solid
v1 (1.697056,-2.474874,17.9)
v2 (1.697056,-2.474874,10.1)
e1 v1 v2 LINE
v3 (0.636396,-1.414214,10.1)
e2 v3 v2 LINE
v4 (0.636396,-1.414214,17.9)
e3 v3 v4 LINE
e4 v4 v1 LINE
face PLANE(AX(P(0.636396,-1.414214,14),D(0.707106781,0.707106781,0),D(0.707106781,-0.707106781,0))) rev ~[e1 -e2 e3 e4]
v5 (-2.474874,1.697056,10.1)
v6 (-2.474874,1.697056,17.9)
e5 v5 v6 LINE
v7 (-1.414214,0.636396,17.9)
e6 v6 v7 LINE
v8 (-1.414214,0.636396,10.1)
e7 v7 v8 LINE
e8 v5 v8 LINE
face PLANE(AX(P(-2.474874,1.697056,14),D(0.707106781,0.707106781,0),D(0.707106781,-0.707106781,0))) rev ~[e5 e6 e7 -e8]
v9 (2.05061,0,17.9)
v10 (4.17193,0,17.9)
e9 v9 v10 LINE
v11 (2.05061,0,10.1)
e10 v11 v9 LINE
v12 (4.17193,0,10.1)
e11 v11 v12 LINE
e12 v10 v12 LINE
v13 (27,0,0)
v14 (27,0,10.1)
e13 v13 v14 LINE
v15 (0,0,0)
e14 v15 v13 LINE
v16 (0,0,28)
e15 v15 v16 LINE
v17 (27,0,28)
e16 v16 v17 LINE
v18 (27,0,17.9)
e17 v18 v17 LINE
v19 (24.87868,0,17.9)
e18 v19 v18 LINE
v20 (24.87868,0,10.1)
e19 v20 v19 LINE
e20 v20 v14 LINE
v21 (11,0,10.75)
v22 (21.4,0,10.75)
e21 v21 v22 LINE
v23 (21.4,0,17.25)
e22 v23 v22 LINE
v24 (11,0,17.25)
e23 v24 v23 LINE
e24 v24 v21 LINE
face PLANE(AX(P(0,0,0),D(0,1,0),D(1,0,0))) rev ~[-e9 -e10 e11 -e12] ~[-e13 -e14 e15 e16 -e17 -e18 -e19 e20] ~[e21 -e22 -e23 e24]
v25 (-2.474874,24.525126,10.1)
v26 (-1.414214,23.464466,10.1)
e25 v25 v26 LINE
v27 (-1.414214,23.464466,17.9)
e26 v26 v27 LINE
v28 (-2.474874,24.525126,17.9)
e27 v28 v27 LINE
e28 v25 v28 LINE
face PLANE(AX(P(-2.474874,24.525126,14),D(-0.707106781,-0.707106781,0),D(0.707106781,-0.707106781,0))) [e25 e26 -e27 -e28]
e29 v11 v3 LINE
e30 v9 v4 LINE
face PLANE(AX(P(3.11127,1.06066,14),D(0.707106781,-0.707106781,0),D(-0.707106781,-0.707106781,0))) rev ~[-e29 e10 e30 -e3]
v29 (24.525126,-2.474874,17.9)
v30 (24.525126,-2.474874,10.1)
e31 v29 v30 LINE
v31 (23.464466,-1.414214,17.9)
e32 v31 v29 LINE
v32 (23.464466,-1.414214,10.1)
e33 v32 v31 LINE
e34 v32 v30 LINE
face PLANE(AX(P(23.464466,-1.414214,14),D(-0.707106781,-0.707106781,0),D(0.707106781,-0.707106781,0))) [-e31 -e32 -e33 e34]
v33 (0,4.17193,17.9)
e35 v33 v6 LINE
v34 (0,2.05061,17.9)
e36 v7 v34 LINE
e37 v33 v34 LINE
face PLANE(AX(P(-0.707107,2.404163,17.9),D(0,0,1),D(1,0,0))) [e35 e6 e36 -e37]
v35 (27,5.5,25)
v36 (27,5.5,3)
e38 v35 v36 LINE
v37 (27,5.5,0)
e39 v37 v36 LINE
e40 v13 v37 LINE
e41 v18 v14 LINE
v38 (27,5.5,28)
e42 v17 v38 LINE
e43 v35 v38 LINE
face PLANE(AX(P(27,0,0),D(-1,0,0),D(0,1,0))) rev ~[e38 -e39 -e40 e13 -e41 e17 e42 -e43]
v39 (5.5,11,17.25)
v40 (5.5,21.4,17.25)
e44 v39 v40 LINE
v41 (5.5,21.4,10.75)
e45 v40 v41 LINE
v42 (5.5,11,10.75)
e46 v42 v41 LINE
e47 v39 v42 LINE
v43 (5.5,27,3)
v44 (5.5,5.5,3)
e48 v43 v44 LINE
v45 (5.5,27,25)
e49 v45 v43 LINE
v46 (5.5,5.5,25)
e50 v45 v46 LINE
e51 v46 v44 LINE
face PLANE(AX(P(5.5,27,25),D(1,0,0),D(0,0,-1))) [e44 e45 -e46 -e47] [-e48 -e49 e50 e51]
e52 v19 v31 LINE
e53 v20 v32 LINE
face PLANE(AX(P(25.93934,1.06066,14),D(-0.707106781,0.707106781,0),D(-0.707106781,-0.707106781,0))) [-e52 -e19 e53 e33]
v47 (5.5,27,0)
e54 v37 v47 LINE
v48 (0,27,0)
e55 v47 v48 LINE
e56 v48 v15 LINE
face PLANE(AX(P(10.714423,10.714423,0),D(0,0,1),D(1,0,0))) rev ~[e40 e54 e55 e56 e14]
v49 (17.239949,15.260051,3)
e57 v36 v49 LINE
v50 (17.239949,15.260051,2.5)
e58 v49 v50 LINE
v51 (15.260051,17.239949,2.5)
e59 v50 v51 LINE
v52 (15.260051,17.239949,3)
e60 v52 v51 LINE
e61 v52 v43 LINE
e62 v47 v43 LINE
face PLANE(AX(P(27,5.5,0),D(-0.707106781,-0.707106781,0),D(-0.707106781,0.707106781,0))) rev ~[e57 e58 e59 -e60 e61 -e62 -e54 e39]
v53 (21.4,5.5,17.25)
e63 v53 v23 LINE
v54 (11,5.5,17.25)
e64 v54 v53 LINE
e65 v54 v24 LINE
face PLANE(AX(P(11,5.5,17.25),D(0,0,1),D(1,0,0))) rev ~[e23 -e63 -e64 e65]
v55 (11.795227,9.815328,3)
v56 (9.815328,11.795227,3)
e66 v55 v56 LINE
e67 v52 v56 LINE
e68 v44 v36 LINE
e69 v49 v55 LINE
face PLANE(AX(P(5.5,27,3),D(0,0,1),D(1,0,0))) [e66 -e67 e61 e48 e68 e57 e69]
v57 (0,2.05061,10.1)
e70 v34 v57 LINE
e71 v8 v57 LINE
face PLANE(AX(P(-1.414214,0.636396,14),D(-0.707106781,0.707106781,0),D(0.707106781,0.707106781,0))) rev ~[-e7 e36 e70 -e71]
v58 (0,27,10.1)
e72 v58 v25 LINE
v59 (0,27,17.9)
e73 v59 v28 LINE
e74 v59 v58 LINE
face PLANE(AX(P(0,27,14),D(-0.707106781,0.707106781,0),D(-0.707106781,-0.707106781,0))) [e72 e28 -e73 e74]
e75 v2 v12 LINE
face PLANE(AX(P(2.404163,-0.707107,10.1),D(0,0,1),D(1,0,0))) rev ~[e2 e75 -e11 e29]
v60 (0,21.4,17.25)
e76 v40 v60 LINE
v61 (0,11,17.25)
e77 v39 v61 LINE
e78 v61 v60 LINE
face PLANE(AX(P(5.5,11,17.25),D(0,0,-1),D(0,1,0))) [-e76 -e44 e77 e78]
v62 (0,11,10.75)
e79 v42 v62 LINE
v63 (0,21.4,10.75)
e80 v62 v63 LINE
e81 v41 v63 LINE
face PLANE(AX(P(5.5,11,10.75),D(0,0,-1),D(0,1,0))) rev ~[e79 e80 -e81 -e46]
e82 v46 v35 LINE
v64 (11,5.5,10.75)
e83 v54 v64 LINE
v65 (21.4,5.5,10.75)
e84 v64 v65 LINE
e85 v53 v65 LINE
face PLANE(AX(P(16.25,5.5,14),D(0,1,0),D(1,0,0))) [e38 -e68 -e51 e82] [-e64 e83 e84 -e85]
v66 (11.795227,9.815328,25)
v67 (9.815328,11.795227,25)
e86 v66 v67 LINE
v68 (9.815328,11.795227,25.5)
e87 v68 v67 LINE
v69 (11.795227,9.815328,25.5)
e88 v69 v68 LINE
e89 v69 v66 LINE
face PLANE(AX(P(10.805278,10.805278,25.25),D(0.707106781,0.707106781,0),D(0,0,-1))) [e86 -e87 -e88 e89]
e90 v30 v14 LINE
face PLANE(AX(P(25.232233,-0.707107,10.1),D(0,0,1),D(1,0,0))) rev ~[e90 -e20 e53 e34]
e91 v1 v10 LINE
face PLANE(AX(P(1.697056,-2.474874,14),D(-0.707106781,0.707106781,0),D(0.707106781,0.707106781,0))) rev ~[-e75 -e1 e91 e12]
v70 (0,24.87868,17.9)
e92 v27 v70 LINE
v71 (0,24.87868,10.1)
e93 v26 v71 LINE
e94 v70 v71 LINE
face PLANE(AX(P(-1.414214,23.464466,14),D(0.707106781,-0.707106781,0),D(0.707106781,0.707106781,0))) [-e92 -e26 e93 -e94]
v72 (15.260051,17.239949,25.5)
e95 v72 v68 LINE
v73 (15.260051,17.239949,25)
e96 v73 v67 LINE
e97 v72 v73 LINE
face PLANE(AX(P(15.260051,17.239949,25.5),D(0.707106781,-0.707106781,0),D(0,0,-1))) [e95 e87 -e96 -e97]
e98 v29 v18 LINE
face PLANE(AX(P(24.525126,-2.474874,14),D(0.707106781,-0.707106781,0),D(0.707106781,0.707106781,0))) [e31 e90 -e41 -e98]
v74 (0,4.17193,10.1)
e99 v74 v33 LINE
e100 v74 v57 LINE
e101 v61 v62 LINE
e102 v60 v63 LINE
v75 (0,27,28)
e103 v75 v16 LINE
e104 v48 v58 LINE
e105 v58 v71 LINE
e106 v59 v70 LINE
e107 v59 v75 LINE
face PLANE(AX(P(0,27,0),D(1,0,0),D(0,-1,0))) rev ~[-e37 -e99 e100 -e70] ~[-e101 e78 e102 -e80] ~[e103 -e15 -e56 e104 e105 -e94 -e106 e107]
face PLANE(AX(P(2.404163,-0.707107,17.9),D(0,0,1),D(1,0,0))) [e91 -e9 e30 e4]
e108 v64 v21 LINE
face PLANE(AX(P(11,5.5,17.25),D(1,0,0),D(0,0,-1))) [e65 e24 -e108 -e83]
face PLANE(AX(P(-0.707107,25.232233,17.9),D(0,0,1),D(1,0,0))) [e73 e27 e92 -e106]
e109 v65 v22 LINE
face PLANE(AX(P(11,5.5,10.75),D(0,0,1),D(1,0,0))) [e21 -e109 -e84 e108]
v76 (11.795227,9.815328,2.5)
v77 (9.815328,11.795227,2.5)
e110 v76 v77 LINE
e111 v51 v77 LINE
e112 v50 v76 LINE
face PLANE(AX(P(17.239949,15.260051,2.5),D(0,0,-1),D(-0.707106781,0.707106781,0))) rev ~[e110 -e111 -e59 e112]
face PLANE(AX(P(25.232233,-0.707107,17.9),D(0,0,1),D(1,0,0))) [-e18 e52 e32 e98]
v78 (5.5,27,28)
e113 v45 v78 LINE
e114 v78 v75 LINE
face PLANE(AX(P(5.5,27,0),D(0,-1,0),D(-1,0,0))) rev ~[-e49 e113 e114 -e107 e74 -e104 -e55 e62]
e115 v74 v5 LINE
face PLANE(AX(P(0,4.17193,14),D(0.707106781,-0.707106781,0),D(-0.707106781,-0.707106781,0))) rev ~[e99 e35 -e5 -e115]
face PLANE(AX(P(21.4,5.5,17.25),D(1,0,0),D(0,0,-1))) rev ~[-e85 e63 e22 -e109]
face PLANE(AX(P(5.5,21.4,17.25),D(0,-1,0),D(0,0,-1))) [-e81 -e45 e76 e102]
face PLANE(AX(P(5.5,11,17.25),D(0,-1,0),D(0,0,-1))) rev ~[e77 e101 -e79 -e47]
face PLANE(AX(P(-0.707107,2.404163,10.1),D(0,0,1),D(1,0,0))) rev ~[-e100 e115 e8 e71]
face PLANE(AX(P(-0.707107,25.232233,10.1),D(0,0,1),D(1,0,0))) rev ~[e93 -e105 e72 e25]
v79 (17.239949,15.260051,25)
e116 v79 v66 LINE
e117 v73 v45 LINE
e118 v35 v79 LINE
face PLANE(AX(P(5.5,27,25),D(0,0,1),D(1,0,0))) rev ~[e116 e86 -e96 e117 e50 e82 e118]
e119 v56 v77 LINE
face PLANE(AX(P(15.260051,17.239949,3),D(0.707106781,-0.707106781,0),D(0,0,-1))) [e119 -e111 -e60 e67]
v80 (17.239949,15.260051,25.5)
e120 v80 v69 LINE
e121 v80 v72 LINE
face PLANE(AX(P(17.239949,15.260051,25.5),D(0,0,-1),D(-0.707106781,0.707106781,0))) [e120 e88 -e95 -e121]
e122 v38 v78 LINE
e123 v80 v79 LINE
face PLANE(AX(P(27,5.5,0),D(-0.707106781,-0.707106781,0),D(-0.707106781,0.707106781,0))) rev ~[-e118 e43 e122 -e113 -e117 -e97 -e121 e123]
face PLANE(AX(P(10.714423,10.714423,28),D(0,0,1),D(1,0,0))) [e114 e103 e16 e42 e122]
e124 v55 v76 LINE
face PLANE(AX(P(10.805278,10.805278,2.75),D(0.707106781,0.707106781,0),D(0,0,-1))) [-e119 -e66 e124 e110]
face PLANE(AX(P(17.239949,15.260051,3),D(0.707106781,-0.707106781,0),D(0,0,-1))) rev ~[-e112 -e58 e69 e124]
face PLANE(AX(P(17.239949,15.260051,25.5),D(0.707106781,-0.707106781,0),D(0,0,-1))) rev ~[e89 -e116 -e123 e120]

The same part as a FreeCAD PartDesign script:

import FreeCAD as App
import Part
import Sketcher
from FreeCAD import Vector
Q = App.Units.Quantity

doc = App.newDocument("Part")
body = doc.addObject("PartDesign::Body", "Body")

# Sketch on XY plane
sketch1 = body.newObject("Sketcher::SketchObject", "Sketch")
sketch1.AttachmentSupport = (doc.getObject("XY_Plane"), [""])
sketch1.MapMode = "FlatFace"
sketch1.addGeometry([
    Part.LineSegment(Vector(0, 27, 0), Vector(0, 0, 0)),  # 0
    Part.LineSegment(Vector(0, 0, 0), Vector(27, 0, 0)),  # 1
    Part.LineSegment(Vector(27, 0, 0), Vector(27, 6, 0)),  # 2
    Part.LineSegment(Vector(27, 6, 0), Vector(6, 27, 0)),  # 3
    Part.LineSegment(Vector(6, 27, 0), Vector(0, 27, 0)),  # 4
], False)
sketch1.addConstraint([
    Sketcher.Constraint("Coincident", 0, 2, 1, 1),
    Sketcher.Constraint("Coincident", 1, 2, 2, 1),
    Sketcher.Constraint("Coincident", 2, 2, 3, 1),
    Sketcher.Constraint("Coincident", 3, 2, 4, 1),
    Sketcher.Constraint("Coincident", 4, 2, 0, 1),
    Sketcher.Constraint("Vertical", 0),
    Sketcher.Constraint("Horizontal", 1),
    Sketcher.Constraint("Vertical", 2),
    Sketcher.Constraint("Horizontal", 4),
    Sketcher.Constraint("Coincident", 0, 2, -1, 1),
    Sketcher.Constraint("Equal", 1, 0),
    Sketcher.Constraint("Equal", 4, 2),
    Sketcher.Constraint("DistanceX", 1, 1, 1, 2, 27.0),
    Sketcher.Constraint("DistanceX", 4, 2, 4, 1, 5.5),
])
pad1 = body.newObject("PartDesign::Pad", "Pad")
pad1.Profile = sketch1
pad1.Length = 28

# Sketch on XZ plane
sketch2 = body.newObject("Sketcher::SketchObject", "Sketch001")
sketch2.AttachmentSupport = (doc.getObject("XZ_Plane"), [""])
sketch2.MapMode = "FlatFace"
sketch2.AttachmentOffset = App.Placement(Vector(0, 0, -27), App.Rotation())
sketch2.addGeometry([
    Part.LineSegment(Vector(6, 3, 0), Vector(6, 25, 0)),
    Part.LineSegment(Vector(6, 25, 0), Vector(27, 25, 0)),
    Part.LineSegment(Vector(27, 25, 0), Vector(27, 3, 0)),
    Part.LineSegment(Vector(27, 3, 0), Vector(6, 3, 0)),
], False)
sketch2.addConstraint([
    Sketcher.Constraint("Coincident", 0, 2, 1, 1),
    Sketcher.Constraint("Coincident", 1, 2, 2, 1),
    Sketcher.Constraint("Coincident", 2, 2, 3, 1),
    Sketcher.Constraint("Coincident", 3, 2, 0, 1),
    Sketcher.Constraint("Vertical", 0),
    Sketcher.Constraint("Horizontal", 1),
    Sketcher.Constraint("Vertical", 2),
    Sketcher.Constraint("Horizontal", 3),
    Sketcher.Constraint("DistanceY", 0, 1, 0, 2, 22.0),
    Sketcher.Constraint("DistanceX", 1, 1, 1, 2, 21.5),
    Sketcher.Constraint("DistanceY", -1, 1, 0, 2, 25.0),
    Sketcher.Constraint("DistanceX", -1, 1, 1, 2, 27.0),
])
pocket1 = body.newObject("PartDesign::Pocket", "Pocket")
pocket1.Profile = sketch2
pocket1.Length = 21.5
pocket1.Reversed = True

# Sketch on YZ plane
sketch3 = body.newObject("Sketcher::SketchObject", "Sketch002")
sketch3.AttachmentSupport = (doc.getObject("YZ_Plane"), [""])
sketch3.MapMode = "FlatFace"
sketch3.AttachmentOffset = App.Placement(Vector(0, 0, 5.5), App.Rotation())
sketch3.addGeometry([
    Part.LineSegment(Vector(21, 17, 0), Vector(11, 17, 0)),
    Part.LineSegment(Vector(11, 17, 0), Vector(11, 11, 0)),
    Part.LineSegment(Vector(11, 11, 0), Vector(21, 11, 0)),
    Part.LineSegment(Vector(21, 11, 0), Vector(21, 17, 0)),
], False)
sketch3.addConstraint([
    Sketcher.Constraint("Coincident", 0, 2, 1, 1),
    Sketcher.Constraint("Coincident", 1, 2, 2, 1),
    Sketcher.Constraint("Coincident", 2, 2, 3, 1),
    Sketcher.Constraint("Coincident", 3, 2, 0, 1),
    Sketcher.Constraint("Horizontal", 0),
    Sketcher.Constraint("Vertical", 1),
    Sketcher.Constraint("Horizontal", 2),
    Sketcher.Constraint("Vertical", 3),
    Sketcher.Constraint("DistanceX", 0, 2, 0, 1, 10.4),
    Sketcher.Constraint("DistanceY", 1, 2, 1, 1, 6.5),
    Sketcher.Constraint("DistanceX", -1, 1, 0, 2, 11.0),
    Sketcher.Constraint("DistanceY", -1, 1, 0, 2, 17.25),
])
pocket2 = body.newObject("PartDesign::Pocket", "Pocket001")
pocket2.Profile = sketch3
pocket2.Length = 6.9

# Sketch on XZ plane
sketch4 = body.newObject("Sketcher::SketchObject", "Sketch003")
sketch4.AttachmentSupport = (doc.getObject("XZ_Plane"), [""])
sketch4.MapMode = "FlatFace"
sketch4.AttachmentOffset = App.Placement(Vector(0, 0, -5.5), App.Rotation())
sketch4.addGeometry([
    Part.LineSegment(Vector(11, 11, 0), Vector(11, 17, 0)),
    Part.LineSegment(Vector(11, 17, 0), Vector(21, 17, 0)),
    Part.LineSegment(Vector(21, 17, 0), Vector(21, 11, 0)),
    Part.LineSegment(Vector(21, 11, 0), Vector(11, 11, 0)),
], False)
sketch4.addConstraint([
    Sketcher.Constraint("Coincident", 0, 2, 1, 1),
    Sketcher.Constraint("Coincident", 1, 2, 2, 1),
    Sketcher.Constraint("Coincident", 2, 2, 3, 1),
    Sketcher.Constraint("Coincident", 3, 2, 0, 1),
    Sketcher.Constraint("Vertical", 0),
    Sketcher.Constraint("Horizontal", 1),
    Sketcher.Constraint("Vertical", 2),
    Sketcher.Constraint("Horizontal", 3),
    Sketcher.Constraint("DistanceX", 1, 1, 1, 2, 10.4),
    Sketcher.Constraint("DistanceY", 0, 1, 0, 2, 6.5),
    Sketcher.Constraint("DistanceX", -1, 1, 0, 2, 11.0),
    Sketcher.Constraint("DistanceY", -1, 1, 0, 2, 17.25),
])
pocket3 = body.newObject("PartDesign::Pocket", "Pocket002")
pocket3.Profile = sketch4
pocket3.Length = 18
pocket3.Reversed = True

# Sketch on an angled plane
sketch5 = body.newObject("Sketcher::SketchObject", "Sketch004")
sketch5.Placement = App.Placement(Vector(16.25, 16.25, 0), App.Rotation(Vector(0, 0, -1), Vector(-0.707106781, 0.707106781, 0), Vector(0.707106781, 0.707106781, 0), "ZXY"))
sketch5.addGeometry([
    Part.LineSegment(Vector(-25.5, 1.4, 0), Vector(-25.5, -1.4, 0)),  # 0
    Part.LineSegment(Vector(-25.5, -1.4, 0), Vector(-25, -1.4, 0)),  # 1
    Part.LineSegment(Vector(-25, -1.4, 0), Vector(-25, 1.4, 0)),  # 2
    Part.LineSegment(Vector(-25, 1.4, 0), Vector(-25.5, 1.4, 0)),  # 3
    Part.LineSegment(Vector(-3, 1.4, 0), Vector(-3, -1.4, 0)),  # 4
    Part.LineSegment(Vector(-3, -1.4, 0), Vector(-2.5, -1.4, 0)),  # 5
    Part.LineSegment(Vector(-2.5, -1.4, 0), Vector(-2.5, 1.4, 0)),  # 6
    Part.LineSegment(Vector(-2.5, 1.4, 0), Vector(-3, 1.4, 0)),  # 7
], False)
sketch5.addConstraint([
    Sketcher.Constraint("Coincident", 0, 2, 1, 1),
    Sketcher.Constraint("Coincident", 1, 2, 2, 1),
    Sketcher.Constraint("Coincident", 2, 2, 3, 1),
    Sketcher.Constraint("Coincident", 3, 2, 0, 1),
    Sketcher.Constraint("Coincident", 4, 2, 5, 1),
    Sketcher.Constraint("Coincident", 5, 2, 6, 1),
    Sketcher.Constraint("Coincident", 6, 2, 7, 1),
    Sketcher.Constraint("Coincident", 7, 2, 4, 1),
    Sketcher.Constraint("Vertical", 0),
    Sketcher.Constraint("Horizontal", 1),
    Sketcher.Constraint("Vertical", 2),
    Sketcher.Constraint("Horizontal", 3),
    Sketcher.Constraint("Vertical", 4),
    Sketcher.Constraint("Horizontal", 5),
    Sketcher.Constraint("Vertical", 6),
    Sketcher.Constraint("Horizontal", 7),
    Sketcher.Constraint("Horizontal", 1, 2, 4, 2),
    Sketcher.Constraint("Horizontal", 3, 2, 6, 2),
    Sketcher.Constraint("Equal", 3, 5),
    Sketcher.Constraint("DistanceX", 1, 1, 1, 2, 0.5),
    Sketcher.Constraint("DistanceY", 0, 2, 0, 1, 2.8),
    Sketcher.Constraint("DistanceX", 1, 2, -1, 1, 25.0),
    Sketcher.Constraint("DistanceX", 4, 2, -1, 1, 3.0),
    Sketcher.Constraint("DistanceY", 0, 2, -1, 1, 1.4),
])
pocket4 = body.newObject("PartDesign::Pocket", "Pocket003")
pocket4.Profile = sketch5
pocket4.Length = 7.7

# Sketch on XY plane
sketch6 = body.newObject("Sketcher::SketchObject", "Sketch005")
sketch6.AttachmentSupport = (doc.getObject("XY_Plane"), [""])
sketch6.MapMode = "FlatFace"
sketch6.AttachmentOffset = App.Placement(Vector(0, 0, 14), App.Rotation())
sketch6.addGeometry([
    Part.LineSegment(Vector(0, 27, 0), Vector(-2.5, 24.5, 0)),  # 0
    Part.LineSegment(Vector(-2.5, 24.5, 0), Vector(-1.4, 23.5, 0)),  # 1
    Part.LineSegment(Vector(-1.4, 23.5, 0), Vector(1.1, 25.9, 0)),  # 2
    Part.LineSegment(Vector(1.1, 25.9, 0), Vector(0, 27, 0)),  # 3
    Part.LineSegment(Vector(0, 4.2, 0), Vector(-2.5, 1.7, 0)),  # 4
    Part.LineSegment(Vector(-2.5, 1.7, 0), Vector(-1.4, 0.6, 0)),  # 5
    Part.LineSegment(Vector(-1.4, 0.6, 0), Vector(1.1, 3.1, 0)),  # 6
    Part.LineSegment(Vector(1.1, 3.1, 0), Vector(0, 4.2, 0)),  # 7
    Part.LineSegment(Vector(3.1, 1.1, 0), Vector(0.6, -1.4, 0)),  # 8
    Part.LineSegment(Vector(0.6, -1.4, 0), Vector(1.7, -2.5, 0)),  # 9
    Part.LineSegment(Vector(1.7, -2.5, 0), Vector(4.2, 0, 0)),  # 10
    Part.LineSegment(Vector(4.2, 0, 0), Vector(3.1, 1.1, 0)),  # 11
    Part.LineSegment(Vector(25.9, 1.1, 0), Vector(23.5, -1.4, 0)),  # 12
    Part.LineSegment(Vector(23.5, -1.4, 0), Vector(24.5, -2.5, 0)),  # 13
    Part.LineSegment(Vector(24.5, -2.5, 0), Vector(27, 0, 0)),  # 14
    Part.LineSegment(Vector(27, 0, 0), Vector(25.9, 1.1, 0)),  # 15
], False)
sketch6.addConstraint([
    Sketcher.Constraint("Coincident", 0, 2, 1, 1),
    Sketcher.Constraint("Coincident", 1, 2, 2, 1),
    Sketcher.Constraint("Coincident", 2, 2, 3, 1),
    Sketcher.Constraint("Coincident", 3, 2, 0, 1),
    Sketcher.Constraint("Coincident", 4, 2, 5, 1),
    Sketcher.Constraint("Coincident", 5, 2, 6, 1),
    Sketcher.Constraint("Coincident", 6, 2, 7, 1),
    Sketcher.Constraint("Coincident", 7, 2, 4, 1),
    Sketcher.Constraint("Coincident", 8, 2, 9, 1),
    Sketcher.Constraint("Coincident", 9, 2, 10, 1),
    Sketcher.Constraint("Coincident", 10, 2, 11, 1),
    Sketcher.Constraint("Coincident", 11, 2, 8, 1),
    Sketcher.Constraint("Coincident", 12, 2, 13, 1),
    Sketcher.Constraint("Coincident", 13, 2, 14, 1),
    Sketcher.Constraint("Coincident", 14, 2, 15, 1),
    Sketcher.Constraint("Coincident", 15, 2, 12, 1),
    Sketcher.Constraint("PointOnObject", 3, 2, -2),
    Sketcher.Constraint("PointOnObject", 7, 2, -2),
    Sketcher.Constraint("PointOnObject", 10, 2, -1),
    Sketcher.Constraint("PointOnObject", 14, 2, -1),
    Sketcher.Constraint("Perpendicular", 0, 1),
    Sketcher.Constraint("Perpendicular", 1, 2),
    Sketcher.Constraint("Perpendicular", 2, 3),
    Sketcher.Constraint("Perpendicular", 3, 4),
    Sketcher.Constraint("Perpendicular", 4, 5),
    Sketcher.Constraint("Perpendicular", 5, 6),
    Sketcher.Constraint("Perpendicular", 6, 7),
    Sketcher.Constraint("Perpendicular", 7, 8),
    Sketcher.Constraint("Perpendicular", 8, 9),
    Sketcher.Constraint("Perpendicular", 9, 10),
    Sketcher.Constraint("Perpendicular", 10, 11),
    Sketcher.Constraint("Perpendicular", 11, 12),
    Sketcher.Constraint("Perpendicular", 12, 13),
    Sketcher.Constraint("Perpendicular", 13, 14),
    Sketcher.Constraint("Perpendicular", 14, 15),
    Sketcher.Constraint("Horizontal", 8, 2, 12, 2),
    Sketcher.Constraint("Horizontal", 9, 2, 13, 2),
    Sketcher.Constraint("Vertical", 0, 2, 4, 2),
    Sketcher.Constraint("Vertical", 1, 2, 5, 2),
    Sketcher.Constraint("Equal", 6, 8),
    Sketcher.Constraint("Equal", 7, 9),
    Sketcher.Constraint("Angle", 0, Q("-135 deg")),
    Sketcher.Constraint("DistanceY", -1, 1, 3, 2, 27.0),
    Sketcher.Constraint("DistanceX", -1, 1, 14, 2, 27.0),
    Sketcher.Constraint("Distance", 0, 3.5),
    Sketcher.Constraint("Distance", 1, 1.5),
    Sketcher.Constraint("DistanceY", -1, 1, 6, 2, 3.11127),
    Sketcher.Constraint("DistanceX", -1, 1, 10, 2, 4.17193),
])
pad2 = body.newObject("PartDesign::Pad", "Pad001")
pad2.Profile = sketch6
pad2.Type = "TwoLengths"
pad2.Length = 3.9
pad2.Length2 = 3.9

doc.recompute()
